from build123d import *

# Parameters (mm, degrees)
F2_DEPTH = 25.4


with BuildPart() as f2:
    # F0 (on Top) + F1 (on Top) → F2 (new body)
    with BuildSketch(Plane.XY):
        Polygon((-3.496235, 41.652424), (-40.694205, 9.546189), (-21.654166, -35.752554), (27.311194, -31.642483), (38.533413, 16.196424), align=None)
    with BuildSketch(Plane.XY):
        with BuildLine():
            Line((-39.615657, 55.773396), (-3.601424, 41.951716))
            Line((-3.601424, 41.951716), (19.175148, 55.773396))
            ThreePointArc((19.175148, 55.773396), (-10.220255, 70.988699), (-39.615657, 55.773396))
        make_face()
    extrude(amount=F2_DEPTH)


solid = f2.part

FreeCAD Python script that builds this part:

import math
import FreeCAD as App
import Part
import Sketcher

V = App.Vector
Q = App.Units.Quantity

doc = App.newDocument("Part")
body = doc.addObject("PartDesign::Body", "Body")
body.AllowCompound = True

sketch1 = body.newObject("Sketcher::SketchObject", "Sketch")
sketch1.AttachmentSupport = (doc.getObject("XY_Plane"), [""])
sketch1.MapMode = "FlatFace"
sketch1.addGeometry([
    Part.LineSegment(V(-3, 42, 0), V(-41, 10, 0)),
    Part.LineSegment(V(-41, 10, 0), V(-22, -36, 0)),
    Part.LineSegment(V(-22, -36, 0), V(27, -32, 0)),
    Part.LineSegment(V(27, -32, 0), V(39, 16, 0)),
    Part.LineSegment(V(39, 16, 0), V(-3, 42, 0)),
    Part.LineSegment(V(-40, 56, 0), V(-4, 42, 0)),
    Part.LineSegment(V(-4, 42, 0), V(19, 56, 0)),
    Part.ArcOfCircle(Part.Circle(V(-10, 35, 0), V(0, 0, 1), 36), math.radians(35), math.radians(145)),
], False)
sketch1.addConstraint([
    Sketcher.Constraint("Coincident", 0, 2, 1, 1),
    Sketcher.Constraint("Coincident", 1, 2, 2, 1),
    Sketcher.Constraint("Coincident", 2, 2, 3, 1),
    Sketcher.Constraint("Coincident", 3, 2, 4, 1),
    Sketcher.Constraint("Coincident", 4, 2, 0, 1),
    Sketcher.Constraint("Coincident", 5, 2, 6, 1),
    Sketcher.Constraint("Coincident", 6, 2, 7, 1),
    Sketcher.Constraint("Coincident", 7, 2, 5, 1),
    Sketcher.Constraint("Horizontal", 6, 2, 7, 2),
    Sketcher.Constraint("Equal", 0, 1),
    Sketcher.Constraint("Equal", 1, 2),
    Sketcher.Constraint("Equal", 2, 3),
    Sketcher.Constraint("Equal", 3, 4),
    Sketcher.Constraint("Radius", 7, 36.003067),
    Sketcher.Constraint("DistanceX", 0, 2, 2, 2, 68.005399),
    Sketcher.Constraint("DistanceY", 3, 2, 4, 2, 25.456),
    Sketcher.Constraint("Distance", 5, 38.57543),
    Sketcher.Constraint("Distance", 6, 26.64228),
    Sketcher.Constraint("DistanceY", -1, 1, 0, 2, 9.546189),
    Sketcher.Constraint("DistanceX", -1, 1, 6, 2, 19.175148),
    Sketcher.Constraint("DistanceX", 0, 2, 7, 3, 30.47395),
    Sketcher.Constraint("DistanceX", 0, 2, 1, 2, 19.040039),
    Sketcher.Constraint("DistanceY", 1, 2, 2, 2, 4.110071),
    Sketcher.Constraint("DistanceY", 3, 2, 7, 3, 18.789208),
    Sketcher.Constraint("DistanceX", 5, 2, 4, 2, 0.105189),
])
pad1 = body.newObject("PartDesign::Pad", "Pad")
pad1.Profile = sketch1
pad1.Length = Q("1 in")

doc.recompute()
